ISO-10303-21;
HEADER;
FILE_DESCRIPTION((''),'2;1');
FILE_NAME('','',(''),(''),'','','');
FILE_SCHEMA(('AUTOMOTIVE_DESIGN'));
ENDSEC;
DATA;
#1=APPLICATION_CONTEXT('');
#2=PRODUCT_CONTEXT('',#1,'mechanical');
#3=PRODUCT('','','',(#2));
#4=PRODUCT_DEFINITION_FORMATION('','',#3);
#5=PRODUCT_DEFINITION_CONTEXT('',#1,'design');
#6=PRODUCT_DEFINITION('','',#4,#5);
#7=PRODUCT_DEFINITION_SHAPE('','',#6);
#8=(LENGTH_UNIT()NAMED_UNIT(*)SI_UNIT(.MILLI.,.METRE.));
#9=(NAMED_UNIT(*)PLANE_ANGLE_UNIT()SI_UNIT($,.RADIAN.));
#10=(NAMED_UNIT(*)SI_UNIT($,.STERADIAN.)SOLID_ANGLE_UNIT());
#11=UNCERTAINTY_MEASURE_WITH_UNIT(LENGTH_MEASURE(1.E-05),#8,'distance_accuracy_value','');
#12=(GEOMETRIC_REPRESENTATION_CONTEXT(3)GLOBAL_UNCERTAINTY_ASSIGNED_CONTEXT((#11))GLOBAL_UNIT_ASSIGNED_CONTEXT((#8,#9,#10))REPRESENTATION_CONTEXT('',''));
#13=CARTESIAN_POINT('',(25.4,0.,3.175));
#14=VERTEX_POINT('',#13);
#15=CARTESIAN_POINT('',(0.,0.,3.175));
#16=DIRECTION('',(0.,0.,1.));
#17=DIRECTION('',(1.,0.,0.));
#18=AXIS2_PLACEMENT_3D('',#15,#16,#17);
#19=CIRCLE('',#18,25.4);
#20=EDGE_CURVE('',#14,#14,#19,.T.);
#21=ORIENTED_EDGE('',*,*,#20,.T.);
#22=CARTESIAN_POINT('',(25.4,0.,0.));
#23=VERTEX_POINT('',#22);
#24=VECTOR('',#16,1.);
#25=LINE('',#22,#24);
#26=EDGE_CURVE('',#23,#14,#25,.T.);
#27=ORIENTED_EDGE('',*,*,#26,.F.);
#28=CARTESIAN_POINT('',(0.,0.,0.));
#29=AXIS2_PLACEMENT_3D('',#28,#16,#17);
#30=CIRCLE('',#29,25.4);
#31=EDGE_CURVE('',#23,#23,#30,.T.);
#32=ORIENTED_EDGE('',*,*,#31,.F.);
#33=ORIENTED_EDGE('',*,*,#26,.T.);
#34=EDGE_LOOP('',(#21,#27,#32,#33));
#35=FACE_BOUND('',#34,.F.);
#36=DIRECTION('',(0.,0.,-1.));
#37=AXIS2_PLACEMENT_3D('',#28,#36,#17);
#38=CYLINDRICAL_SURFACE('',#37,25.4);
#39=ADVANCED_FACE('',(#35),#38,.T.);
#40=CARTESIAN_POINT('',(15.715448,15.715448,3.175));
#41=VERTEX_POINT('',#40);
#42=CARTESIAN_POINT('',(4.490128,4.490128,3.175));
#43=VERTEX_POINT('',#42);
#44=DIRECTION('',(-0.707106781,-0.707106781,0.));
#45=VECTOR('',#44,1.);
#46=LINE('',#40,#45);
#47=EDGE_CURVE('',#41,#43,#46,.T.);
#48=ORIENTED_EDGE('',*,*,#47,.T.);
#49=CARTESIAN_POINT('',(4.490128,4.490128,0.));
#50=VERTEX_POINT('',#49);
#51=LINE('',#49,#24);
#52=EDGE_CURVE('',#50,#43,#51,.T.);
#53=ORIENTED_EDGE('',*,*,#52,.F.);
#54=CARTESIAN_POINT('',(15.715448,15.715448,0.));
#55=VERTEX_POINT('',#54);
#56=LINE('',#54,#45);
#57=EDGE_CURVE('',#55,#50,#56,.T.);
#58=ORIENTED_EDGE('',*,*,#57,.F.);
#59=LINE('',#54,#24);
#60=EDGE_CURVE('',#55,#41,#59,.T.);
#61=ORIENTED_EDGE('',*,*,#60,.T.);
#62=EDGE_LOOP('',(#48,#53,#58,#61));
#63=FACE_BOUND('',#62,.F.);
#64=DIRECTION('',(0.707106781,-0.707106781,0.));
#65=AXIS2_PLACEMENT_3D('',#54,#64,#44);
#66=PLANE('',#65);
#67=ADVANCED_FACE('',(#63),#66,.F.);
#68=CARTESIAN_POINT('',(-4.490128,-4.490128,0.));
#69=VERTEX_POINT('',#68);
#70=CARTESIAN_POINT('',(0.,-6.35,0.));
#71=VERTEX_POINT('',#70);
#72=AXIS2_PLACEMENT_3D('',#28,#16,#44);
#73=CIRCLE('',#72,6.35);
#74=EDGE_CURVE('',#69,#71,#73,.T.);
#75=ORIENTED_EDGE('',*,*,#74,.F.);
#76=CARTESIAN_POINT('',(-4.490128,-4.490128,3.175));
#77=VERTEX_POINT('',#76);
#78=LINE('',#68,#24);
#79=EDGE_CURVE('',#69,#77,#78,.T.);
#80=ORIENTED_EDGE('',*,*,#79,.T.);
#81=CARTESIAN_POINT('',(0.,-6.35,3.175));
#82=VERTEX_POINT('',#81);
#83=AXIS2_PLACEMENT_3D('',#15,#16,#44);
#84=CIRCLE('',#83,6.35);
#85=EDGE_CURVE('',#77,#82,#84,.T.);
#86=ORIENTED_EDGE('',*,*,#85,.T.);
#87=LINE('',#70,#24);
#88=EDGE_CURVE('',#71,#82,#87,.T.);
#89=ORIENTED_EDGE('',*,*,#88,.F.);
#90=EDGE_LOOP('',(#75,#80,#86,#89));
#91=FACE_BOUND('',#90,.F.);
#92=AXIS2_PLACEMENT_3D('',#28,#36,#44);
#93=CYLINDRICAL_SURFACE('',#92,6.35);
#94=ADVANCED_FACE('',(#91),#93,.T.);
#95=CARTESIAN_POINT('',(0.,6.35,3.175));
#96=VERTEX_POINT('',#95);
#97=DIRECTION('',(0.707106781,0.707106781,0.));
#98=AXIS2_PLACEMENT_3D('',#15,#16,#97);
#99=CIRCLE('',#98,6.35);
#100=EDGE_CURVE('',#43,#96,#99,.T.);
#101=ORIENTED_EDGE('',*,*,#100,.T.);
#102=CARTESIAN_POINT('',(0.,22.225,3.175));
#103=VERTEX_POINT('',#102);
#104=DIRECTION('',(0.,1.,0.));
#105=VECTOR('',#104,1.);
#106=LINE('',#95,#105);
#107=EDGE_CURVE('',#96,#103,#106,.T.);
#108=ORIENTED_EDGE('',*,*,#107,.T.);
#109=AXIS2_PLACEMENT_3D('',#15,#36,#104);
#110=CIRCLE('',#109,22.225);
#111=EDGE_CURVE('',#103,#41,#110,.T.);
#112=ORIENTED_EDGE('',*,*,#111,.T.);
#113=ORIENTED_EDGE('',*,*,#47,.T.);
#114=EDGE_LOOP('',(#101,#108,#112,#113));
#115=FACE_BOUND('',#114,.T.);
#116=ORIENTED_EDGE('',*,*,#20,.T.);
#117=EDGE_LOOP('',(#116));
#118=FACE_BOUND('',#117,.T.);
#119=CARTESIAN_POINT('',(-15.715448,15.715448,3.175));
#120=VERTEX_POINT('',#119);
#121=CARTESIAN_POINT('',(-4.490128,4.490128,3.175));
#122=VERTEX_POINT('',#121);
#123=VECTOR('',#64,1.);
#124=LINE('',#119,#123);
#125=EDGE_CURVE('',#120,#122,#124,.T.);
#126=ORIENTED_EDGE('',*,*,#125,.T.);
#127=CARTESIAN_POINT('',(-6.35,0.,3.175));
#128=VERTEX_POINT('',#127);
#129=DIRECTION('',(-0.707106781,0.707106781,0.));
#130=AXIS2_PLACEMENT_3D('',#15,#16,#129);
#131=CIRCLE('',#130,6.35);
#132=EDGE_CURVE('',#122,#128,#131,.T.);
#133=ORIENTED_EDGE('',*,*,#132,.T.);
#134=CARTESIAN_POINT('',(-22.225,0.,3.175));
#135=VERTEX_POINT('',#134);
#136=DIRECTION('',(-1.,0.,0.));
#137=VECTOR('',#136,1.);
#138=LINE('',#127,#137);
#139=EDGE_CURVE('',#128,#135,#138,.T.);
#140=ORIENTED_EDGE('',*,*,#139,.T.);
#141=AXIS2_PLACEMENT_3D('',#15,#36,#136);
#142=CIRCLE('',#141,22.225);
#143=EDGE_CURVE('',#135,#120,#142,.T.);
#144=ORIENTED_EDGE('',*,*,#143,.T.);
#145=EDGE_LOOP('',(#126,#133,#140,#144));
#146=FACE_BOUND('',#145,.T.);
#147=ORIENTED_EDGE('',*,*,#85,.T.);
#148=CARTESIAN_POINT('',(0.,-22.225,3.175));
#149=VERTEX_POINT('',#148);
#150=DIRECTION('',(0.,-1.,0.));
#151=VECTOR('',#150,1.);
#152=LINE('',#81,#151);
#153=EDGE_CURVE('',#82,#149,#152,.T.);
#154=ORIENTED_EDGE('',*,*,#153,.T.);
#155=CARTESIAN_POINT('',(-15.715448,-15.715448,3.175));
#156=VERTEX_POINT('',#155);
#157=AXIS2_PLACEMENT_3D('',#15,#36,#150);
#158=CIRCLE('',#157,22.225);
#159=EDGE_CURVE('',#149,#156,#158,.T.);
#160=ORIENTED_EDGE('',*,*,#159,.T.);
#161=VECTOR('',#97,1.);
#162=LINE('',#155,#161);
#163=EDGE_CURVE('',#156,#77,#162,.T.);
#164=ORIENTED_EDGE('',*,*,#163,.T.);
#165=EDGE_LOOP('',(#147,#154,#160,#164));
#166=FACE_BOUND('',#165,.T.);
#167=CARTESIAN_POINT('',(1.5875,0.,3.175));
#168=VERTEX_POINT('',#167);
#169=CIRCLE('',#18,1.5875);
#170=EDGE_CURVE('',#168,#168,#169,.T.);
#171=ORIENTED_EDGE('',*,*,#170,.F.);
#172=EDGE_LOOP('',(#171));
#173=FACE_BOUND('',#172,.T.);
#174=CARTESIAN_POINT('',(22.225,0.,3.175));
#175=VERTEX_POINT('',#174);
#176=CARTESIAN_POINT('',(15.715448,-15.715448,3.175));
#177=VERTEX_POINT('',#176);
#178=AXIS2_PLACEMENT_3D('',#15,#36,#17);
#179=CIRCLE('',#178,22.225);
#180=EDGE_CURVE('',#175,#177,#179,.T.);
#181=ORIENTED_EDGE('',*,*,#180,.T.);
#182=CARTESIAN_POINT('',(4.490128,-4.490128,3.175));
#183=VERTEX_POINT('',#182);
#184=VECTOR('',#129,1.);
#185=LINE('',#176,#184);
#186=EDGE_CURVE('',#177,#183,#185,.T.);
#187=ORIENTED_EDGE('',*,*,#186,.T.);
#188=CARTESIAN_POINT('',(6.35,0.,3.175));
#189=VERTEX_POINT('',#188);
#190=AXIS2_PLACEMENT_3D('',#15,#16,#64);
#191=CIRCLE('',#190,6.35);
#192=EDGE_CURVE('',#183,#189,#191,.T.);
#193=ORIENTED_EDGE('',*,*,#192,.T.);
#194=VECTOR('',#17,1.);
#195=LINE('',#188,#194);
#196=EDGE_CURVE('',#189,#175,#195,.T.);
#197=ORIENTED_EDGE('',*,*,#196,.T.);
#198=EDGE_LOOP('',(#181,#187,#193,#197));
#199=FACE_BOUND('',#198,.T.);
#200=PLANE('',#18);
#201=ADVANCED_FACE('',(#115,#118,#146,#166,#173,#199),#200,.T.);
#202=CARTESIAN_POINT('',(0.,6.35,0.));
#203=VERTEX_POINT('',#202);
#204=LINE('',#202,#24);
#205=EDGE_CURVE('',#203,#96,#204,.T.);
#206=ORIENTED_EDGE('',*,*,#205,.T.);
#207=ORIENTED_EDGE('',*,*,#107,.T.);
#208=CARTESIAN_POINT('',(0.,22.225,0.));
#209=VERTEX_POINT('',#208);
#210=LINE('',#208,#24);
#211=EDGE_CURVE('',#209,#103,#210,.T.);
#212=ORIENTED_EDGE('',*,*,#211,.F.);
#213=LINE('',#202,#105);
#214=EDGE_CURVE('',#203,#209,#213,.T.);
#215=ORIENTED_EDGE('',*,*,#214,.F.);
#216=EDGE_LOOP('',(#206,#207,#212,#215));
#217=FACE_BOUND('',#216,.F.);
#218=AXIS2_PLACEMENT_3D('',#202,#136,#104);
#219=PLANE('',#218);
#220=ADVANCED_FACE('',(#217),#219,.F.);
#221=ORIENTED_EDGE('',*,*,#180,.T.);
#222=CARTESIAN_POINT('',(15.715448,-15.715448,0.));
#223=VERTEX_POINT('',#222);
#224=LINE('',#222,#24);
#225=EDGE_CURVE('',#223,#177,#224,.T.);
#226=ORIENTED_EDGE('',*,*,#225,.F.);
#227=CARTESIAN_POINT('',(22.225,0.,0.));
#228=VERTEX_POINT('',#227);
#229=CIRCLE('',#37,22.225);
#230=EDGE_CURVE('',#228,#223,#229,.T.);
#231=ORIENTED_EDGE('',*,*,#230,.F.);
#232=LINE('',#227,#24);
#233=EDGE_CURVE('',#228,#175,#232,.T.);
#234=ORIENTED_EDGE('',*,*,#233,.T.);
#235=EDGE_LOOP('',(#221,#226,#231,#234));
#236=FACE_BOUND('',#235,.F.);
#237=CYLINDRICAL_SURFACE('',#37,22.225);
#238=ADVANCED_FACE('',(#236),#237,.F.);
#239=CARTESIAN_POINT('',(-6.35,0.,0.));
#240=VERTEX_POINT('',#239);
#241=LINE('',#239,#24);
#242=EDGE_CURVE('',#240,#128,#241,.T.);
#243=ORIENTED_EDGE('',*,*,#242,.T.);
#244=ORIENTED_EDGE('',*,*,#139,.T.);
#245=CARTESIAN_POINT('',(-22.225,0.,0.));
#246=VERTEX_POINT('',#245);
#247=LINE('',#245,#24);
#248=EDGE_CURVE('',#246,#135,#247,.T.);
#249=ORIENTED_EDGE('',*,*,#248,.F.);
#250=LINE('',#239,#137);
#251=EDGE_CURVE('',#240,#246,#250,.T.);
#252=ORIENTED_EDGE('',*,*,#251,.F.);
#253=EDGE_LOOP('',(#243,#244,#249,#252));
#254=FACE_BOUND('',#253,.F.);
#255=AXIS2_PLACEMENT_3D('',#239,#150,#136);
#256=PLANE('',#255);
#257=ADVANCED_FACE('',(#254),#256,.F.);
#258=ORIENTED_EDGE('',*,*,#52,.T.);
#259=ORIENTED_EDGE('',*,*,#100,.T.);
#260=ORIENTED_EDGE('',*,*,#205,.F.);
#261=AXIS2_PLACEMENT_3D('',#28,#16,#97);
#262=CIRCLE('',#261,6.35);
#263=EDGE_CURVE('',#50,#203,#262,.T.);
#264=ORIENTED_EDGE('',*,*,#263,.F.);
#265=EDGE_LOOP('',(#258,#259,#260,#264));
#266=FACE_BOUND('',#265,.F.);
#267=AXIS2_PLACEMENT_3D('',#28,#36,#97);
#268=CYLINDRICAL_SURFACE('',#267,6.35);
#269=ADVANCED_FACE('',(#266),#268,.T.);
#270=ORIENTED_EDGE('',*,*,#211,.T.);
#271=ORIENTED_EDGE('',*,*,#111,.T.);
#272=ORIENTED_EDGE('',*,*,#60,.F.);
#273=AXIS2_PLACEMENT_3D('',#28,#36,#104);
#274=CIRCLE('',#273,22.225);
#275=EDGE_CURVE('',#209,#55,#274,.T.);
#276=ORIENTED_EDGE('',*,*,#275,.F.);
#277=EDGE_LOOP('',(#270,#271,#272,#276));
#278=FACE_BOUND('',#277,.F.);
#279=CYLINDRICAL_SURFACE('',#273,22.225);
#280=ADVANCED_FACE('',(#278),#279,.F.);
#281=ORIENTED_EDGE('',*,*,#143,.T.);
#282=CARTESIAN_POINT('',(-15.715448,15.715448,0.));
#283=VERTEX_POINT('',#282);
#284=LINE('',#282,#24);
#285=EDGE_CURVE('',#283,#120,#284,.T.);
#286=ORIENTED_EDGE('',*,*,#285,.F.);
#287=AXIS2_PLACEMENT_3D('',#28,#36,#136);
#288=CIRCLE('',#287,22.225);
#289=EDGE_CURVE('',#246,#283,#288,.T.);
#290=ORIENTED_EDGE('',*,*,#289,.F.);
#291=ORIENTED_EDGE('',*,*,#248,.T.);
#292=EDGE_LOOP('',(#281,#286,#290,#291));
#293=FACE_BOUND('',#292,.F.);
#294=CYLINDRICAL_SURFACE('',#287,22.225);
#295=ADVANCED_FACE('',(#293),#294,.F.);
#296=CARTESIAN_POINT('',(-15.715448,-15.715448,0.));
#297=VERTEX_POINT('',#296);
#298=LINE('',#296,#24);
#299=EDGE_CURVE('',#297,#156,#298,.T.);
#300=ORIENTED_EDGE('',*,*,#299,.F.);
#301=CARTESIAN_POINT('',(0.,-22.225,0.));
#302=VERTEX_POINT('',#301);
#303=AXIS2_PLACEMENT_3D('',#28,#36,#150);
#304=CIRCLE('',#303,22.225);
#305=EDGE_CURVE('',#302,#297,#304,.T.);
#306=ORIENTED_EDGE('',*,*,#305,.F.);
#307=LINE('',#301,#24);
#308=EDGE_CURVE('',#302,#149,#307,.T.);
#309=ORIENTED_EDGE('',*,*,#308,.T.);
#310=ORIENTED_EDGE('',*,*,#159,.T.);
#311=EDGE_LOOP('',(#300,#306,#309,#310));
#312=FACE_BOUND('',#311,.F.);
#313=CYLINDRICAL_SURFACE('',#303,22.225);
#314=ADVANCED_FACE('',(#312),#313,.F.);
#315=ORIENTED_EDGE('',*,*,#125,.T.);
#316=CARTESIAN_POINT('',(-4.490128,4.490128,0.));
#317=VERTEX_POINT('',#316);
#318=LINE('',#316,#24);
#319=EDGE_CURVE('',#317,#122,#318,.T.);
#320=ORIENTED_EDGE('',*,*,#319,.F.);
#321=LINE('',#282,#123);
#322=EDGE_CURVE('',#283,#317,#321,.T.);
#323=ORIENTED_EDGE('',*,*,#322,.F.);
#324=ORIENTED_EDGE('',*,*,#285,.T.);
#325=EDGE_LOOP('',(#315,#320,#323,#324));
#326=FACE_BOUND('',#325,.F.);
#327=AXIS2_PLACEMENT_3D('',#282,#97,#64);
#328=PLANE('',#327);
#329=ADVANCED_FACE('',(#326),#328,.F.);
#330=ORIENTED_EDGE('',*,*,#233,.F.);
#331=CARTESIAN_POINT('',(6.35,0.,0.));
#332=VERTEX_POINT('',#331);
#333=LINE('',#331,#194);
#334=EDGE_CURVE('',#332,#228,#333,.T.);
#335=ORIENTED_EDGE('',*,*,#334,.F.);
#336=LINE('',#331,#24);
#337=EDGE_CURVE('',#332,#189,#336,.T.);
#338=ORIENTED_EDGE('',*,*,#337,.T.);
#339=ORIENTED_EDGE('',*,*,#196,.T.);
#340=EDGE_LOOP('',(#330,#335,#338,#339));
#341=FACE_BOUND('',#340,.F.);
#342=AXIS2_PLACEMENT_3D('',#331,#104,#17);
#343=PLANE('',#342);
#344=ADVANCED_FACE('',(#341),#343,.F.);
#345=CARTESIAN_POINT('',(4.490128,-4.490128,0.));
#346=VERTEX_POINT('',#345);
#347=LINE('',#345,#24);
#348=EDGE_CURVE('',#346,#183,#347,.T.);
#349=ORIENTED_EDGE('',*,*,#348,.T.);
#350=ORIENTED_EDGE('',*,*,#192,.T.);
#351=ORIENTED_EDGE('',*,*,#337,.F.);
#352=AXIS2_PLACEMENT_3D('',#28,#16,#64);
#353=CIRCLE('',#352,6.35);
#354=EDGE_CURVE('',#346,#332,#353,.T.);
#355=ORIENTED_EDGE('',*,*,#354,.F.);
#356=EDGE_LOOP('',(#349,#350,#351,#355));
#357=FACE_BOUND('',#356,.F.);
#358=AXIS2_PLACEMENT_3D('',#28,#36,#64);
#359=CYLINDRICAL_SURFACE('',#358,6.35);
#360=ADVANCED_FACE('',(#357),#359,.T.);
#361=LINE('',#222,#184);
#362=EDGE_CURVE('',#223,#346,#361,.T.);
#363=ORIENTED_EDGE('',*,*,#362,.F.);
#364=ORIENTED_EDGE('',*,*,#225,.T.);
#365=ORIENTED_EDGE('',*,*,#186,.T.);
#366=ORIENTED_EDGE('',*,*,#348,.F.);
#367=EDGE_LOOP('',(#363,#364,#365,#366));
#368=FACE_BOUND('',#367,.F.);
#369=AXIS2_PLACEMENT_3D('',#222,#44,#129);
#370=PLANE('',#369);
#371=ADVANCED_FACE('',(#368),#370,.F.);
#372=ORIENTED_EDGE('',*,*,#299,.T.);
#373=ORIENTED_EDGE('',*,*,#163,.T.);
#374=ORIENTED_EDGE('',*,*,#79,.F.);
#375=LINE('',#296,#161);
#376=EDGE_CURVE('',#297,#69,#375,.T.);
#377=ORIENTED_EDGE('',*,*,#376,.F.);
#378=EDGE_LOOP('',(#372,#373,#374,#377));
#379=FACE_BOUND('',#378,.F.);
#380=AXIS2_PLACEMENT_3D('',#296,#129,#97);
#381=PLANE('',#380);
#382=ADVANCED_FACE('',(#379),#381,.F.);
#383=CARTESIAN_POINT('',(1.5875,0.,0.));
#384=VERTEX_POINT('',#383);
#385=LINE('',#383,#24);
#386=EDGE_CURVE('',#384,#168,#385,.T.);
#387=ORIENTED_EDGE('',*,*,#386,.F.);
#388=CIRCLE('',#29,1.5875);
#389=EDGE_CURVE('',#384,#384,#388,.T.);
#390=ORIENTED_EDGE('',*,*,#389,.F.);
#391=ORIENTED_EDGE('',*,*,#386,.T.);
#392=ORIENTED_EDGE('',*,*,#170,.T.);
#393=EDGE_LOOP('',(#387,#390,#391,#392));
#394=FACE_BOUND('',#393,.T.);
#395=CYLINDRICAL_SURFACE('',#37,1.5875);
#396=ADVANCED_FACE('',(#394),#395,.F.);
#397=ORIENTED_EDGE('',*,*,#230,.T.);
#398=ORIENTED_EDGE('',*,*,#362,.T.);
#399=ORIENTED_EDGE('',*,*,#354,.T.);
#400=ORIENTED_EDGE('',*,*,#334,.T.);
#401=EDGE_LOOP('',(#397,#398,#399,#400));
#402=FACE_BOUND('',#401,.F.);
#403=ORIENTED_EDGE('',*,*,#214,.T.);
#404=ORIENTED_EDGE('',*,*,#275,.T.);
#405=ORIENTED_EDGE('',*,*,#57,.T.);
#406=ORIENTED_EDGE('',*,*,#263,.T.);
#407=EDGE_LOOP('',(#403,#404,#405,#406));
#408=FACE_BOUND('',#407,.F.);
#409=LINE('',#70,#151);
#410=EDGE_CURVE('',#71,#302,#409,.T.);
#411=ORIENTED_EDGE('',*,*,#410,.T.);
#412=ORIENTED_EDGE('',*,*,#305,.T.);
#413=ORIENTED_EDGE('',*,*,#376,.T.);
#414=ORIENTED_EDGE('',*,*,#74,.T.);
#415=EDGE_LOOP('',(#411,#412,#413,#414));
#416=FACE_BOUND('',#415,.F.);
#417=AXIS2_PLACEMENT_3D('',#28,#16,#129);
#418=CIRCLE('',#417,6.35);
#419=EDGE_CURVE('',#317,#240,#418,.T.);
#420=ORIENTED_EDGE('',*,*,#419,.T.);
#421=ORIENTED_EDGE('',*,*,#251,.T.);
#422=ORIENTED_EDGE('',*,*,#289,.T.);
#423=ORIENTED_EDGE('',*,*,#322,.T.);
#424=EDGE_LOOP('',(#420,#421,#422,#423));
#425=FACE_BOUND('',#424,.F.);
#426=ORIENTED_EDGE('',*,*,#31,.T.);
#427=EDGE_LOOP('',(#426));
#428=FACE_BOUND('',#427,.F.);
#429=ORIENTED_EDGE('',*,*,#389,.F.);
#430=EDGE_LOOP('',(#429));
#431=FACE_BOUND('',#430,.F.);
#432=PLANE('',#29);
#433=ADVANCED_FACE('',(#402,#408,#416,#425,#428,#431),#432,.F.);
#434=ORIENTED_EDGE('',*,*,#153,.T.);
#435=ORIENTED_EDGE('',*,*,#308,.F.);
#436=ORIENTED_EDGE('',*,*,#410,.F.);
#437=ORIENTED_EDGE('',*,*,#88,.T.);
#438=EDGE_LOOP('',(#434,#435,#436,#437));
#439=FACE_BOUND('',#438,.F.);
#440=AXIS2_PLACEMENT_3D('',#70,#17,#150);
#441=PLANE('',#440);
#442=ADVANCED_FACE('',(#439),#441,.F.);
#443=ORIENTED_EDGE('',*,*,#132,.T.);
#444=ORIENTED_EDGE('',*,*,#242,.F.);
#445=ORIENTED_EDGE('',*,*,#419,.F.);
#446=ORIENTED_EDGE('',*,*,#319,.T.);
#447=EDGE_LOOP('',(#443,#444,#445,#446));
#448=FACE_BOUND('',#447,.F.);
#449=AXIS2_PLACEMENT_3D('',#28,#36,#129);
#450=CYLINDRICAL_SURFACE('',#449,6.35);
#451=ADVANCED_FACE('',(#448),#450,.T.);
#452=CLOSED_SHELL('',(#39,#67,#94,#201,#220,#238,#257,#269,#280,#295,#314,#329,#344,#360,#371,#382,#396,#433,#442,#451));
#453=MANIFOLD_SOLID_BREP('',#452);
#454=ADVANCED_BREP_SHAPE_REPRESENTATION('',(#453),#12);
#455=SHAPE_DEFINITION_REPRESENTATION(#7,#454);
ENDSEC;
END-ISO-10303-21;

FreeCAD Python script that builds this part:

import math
import FreeCAD as App
import Part
import Sketcher

V = App.Vector
Q = App.Units.Quantity

doc = App.newDocument("Part")
body = doc.addObject("PartDesign::Body", "Body")

sketch1 = body.newObject("Sketcher::SketchObject", "Sketch")
sketch1.AttachmentSupport = (doc.getObject("XY_Plane"), [""])
sketch1.MapMode = "FlatFace"
sketch1.addGeometry([
    Part.Circle(V(0, 0, 0), V(0, 0, 1), 25.4),
    Part.LineSegment(V(0, -6.3, 0), V(0, -22.2, 0)),
    Part.ArcOfCircle(Part.Circle(V(0, 0, 0), V(0, 0, 1), 22.2), math.radians(-135), math.radians(-90)),
    Part.LineSegment(V(-15.7, -15.7, 0), V(-4.5, -4.5, 0)),
    Part.ArcOfCircle(Part.Circle(V(0, 0, 0), V(0, 0, 1), 6.3), math.radians(-135), math.radians(-90)),
    Part.LineSegment(V(6.3, 0, 0), V(22.2, 0, 0)),
    Part.ArcOfCircle(Part.Circle(V(0, 0, 0), V(0, 0, 1), 22.2), math.radians(-45), math.radians(0)),
    Part.LineSegment(V(15.7, -15.7, 0), V(4.5, -4.5, 0)),
    Part.ArcOfCircle(Part.Circle(V(0, 0, 0), V(0, 0, 1), 6.3), math.radians(-45), math.radians(0)),
    Part.LineSegment(V(-6.3, 0, 0), V(-22.2, 0, 0)),
    Part.ArcOfCircle(Part.Circle(V(0, 0, 0), V(0, 0, 1), 22.2), math.radians(135), math.radians(180)),
    Part.LineSegment(V(-15.7, 15.7, 0), V(-4.5, 4.5, 0)),
    Part.ArcOfCircle(Part.Circle(V(0, 0, 0), V(0, 0, 1), 6.3), math.radians(135), math.radians(180)),
    Part.Circle(V(0, 0, 0), V(0, 0, 1), 1.6),
    Part.ArcOfCircle(Part.Circle(V(0, 0, 0), V(0, 0, 1), 22.2), math.radians(45), math.radians(90)),
    Part.LineSegment(V(15.7, 15.7, 0), V(4.5, 4.5, 0)),
    Part.ArcOfCircle(Part.Circle(V(0, 0, 0), V(0, 0, 1), 6.3), math.radians(45), math.radians(90)),
    Part.LineSegment(V(0, 6.3, 0), V(0, 22.2, 0)),
], False)
sketch1.addConstraint([
    Sketcher.Constraint("Coincident", 1, 2, 2, 2),
    Sketcher.Constraint("Coincident", 2, 1, 3, 1),
    Sketcher.Constraint("Coincident", 3, 2, 4, 1),
    Sketcher.Constraint("Coincident", 4, 2, 1, 1),
    Sketcher.Constraint("Coincident", 5, 2, 6, 2),
    Sketcher.Constraint("Coincident", 6, 1, 7, 1),
    Sketcher.Constraint("Coincident", 7, 2, 8, 1),
    Sketcher.Constraint("Coincident", 8, 2, 5, 1),
    Sketcher.Constraint("Coincident", 9, 2, 10, 2),
    Sketcher.Constraint("Coincident", 10, 1, 11, 1),
    Sketcher.Constraint("Coincident", 11, 2, 12, 1),
    Sketcher.Constraint("Coincident", 12, 2, 9, 1),
    Sketcher.Constraint("Coincident", 14, 1, 15, 1),
    Sketcher.Constraint("Coincident", 15, 2, 16, 1),
    Sketcher.Constraint("Coincident", 16, 2, 17, 1),
    Sketcher.Constraint("Coincident", 17, 2, 14, 2),
    Sketcher.Constraint("Vertical", 1),
    Sketcher.Constraint("Horizontal", 5),
    Sketcher.Constraint("Horizontal", 9),
    Sketcher.Constraint("Vertical", 17),
    Sketcher.Constraint("Coincident", 0, 3, -1, 1),
    Sketcher.Constraint("Coincident", 2, 3, -1, 1),
    Sketcher.Constraint("Coincident", 4, 3, -1, 1),
    Sketcher.Constraint("Coincident", 6, 3, -1, 1),
    Sketcher.Constraint("Coincident", 8, 3, -1, 1),
    Sketcher.Constraint("Coincident", 10, 3, -1, 1),
    Sketcher.Constraint("Coincident", 12, 3, -1, 1),
    Sketcher.Constraint("Coincident", 13, 3, -1, 1),
    Sketcher.Constraint("Coincident", 14, 3, -1, 1),
    Sketcher.Constraint("Coincident", 16, 3, -1, 1),
    Sketcher.Constraint("Equal", 2, 6),
    Sketcher.Constraint("Equal", 4, 8),
    Sketcher.Constraint("Equal", 6, 10),
    Sketcher.Constraint("Equal", 8, 12),
    Sketcher.Constraint("Equal", 10, 14),
    Sketcher.Constraint("Equal", 12, 16),
    Sketcher.Constraint("PointOnObject", 1, 2, -2),
    Sketcher.Constraint("PointOnObject", 5, 2, -1),
    Sketcher.Constraint("PointOnObject", 9, 2, -1),
    Sketcher.Constraint("PointOnObject", 16, 2, -2),
    Sketcher.Constraint("Perpendicular", 3, 7),
    Sketcher.Constraint("Parallel", 7, 11),
    Sketcher.Constraint("Perpendicular", 11, 15),
    Sketcher.Constraint("Horizontal", 2, 1, 6, 1),
    Sketcher.Constraint("Horizontal", 3, 2, 7, 2),
    Sketcher.Constraint("Horizontal", 10, 1, 14, 1),
    Sketcher.Constraint("Vertical", 2, 1, 10, 1),
    Sketcher.Constraint("Diameter", 0, Q("2 in")),
    Sketcher.Constraint("Radius", 4, Q("0.25 in")),
    Sketcher.Constraint("Diameter", 13, Q("0.125 in")),
    Sketcher.Constraint("Radius", 2, Q("0.875 in")),
    Sketcher.Constraint("DistanceX", 2, 1, -1, 1, 15.715448),
])
pad1 = body.newObject("PartDesign::Pad", "Pad")
pad1.Profile = sketch1
pad1.Length = Q("0.125 in")

doc.recompute()
